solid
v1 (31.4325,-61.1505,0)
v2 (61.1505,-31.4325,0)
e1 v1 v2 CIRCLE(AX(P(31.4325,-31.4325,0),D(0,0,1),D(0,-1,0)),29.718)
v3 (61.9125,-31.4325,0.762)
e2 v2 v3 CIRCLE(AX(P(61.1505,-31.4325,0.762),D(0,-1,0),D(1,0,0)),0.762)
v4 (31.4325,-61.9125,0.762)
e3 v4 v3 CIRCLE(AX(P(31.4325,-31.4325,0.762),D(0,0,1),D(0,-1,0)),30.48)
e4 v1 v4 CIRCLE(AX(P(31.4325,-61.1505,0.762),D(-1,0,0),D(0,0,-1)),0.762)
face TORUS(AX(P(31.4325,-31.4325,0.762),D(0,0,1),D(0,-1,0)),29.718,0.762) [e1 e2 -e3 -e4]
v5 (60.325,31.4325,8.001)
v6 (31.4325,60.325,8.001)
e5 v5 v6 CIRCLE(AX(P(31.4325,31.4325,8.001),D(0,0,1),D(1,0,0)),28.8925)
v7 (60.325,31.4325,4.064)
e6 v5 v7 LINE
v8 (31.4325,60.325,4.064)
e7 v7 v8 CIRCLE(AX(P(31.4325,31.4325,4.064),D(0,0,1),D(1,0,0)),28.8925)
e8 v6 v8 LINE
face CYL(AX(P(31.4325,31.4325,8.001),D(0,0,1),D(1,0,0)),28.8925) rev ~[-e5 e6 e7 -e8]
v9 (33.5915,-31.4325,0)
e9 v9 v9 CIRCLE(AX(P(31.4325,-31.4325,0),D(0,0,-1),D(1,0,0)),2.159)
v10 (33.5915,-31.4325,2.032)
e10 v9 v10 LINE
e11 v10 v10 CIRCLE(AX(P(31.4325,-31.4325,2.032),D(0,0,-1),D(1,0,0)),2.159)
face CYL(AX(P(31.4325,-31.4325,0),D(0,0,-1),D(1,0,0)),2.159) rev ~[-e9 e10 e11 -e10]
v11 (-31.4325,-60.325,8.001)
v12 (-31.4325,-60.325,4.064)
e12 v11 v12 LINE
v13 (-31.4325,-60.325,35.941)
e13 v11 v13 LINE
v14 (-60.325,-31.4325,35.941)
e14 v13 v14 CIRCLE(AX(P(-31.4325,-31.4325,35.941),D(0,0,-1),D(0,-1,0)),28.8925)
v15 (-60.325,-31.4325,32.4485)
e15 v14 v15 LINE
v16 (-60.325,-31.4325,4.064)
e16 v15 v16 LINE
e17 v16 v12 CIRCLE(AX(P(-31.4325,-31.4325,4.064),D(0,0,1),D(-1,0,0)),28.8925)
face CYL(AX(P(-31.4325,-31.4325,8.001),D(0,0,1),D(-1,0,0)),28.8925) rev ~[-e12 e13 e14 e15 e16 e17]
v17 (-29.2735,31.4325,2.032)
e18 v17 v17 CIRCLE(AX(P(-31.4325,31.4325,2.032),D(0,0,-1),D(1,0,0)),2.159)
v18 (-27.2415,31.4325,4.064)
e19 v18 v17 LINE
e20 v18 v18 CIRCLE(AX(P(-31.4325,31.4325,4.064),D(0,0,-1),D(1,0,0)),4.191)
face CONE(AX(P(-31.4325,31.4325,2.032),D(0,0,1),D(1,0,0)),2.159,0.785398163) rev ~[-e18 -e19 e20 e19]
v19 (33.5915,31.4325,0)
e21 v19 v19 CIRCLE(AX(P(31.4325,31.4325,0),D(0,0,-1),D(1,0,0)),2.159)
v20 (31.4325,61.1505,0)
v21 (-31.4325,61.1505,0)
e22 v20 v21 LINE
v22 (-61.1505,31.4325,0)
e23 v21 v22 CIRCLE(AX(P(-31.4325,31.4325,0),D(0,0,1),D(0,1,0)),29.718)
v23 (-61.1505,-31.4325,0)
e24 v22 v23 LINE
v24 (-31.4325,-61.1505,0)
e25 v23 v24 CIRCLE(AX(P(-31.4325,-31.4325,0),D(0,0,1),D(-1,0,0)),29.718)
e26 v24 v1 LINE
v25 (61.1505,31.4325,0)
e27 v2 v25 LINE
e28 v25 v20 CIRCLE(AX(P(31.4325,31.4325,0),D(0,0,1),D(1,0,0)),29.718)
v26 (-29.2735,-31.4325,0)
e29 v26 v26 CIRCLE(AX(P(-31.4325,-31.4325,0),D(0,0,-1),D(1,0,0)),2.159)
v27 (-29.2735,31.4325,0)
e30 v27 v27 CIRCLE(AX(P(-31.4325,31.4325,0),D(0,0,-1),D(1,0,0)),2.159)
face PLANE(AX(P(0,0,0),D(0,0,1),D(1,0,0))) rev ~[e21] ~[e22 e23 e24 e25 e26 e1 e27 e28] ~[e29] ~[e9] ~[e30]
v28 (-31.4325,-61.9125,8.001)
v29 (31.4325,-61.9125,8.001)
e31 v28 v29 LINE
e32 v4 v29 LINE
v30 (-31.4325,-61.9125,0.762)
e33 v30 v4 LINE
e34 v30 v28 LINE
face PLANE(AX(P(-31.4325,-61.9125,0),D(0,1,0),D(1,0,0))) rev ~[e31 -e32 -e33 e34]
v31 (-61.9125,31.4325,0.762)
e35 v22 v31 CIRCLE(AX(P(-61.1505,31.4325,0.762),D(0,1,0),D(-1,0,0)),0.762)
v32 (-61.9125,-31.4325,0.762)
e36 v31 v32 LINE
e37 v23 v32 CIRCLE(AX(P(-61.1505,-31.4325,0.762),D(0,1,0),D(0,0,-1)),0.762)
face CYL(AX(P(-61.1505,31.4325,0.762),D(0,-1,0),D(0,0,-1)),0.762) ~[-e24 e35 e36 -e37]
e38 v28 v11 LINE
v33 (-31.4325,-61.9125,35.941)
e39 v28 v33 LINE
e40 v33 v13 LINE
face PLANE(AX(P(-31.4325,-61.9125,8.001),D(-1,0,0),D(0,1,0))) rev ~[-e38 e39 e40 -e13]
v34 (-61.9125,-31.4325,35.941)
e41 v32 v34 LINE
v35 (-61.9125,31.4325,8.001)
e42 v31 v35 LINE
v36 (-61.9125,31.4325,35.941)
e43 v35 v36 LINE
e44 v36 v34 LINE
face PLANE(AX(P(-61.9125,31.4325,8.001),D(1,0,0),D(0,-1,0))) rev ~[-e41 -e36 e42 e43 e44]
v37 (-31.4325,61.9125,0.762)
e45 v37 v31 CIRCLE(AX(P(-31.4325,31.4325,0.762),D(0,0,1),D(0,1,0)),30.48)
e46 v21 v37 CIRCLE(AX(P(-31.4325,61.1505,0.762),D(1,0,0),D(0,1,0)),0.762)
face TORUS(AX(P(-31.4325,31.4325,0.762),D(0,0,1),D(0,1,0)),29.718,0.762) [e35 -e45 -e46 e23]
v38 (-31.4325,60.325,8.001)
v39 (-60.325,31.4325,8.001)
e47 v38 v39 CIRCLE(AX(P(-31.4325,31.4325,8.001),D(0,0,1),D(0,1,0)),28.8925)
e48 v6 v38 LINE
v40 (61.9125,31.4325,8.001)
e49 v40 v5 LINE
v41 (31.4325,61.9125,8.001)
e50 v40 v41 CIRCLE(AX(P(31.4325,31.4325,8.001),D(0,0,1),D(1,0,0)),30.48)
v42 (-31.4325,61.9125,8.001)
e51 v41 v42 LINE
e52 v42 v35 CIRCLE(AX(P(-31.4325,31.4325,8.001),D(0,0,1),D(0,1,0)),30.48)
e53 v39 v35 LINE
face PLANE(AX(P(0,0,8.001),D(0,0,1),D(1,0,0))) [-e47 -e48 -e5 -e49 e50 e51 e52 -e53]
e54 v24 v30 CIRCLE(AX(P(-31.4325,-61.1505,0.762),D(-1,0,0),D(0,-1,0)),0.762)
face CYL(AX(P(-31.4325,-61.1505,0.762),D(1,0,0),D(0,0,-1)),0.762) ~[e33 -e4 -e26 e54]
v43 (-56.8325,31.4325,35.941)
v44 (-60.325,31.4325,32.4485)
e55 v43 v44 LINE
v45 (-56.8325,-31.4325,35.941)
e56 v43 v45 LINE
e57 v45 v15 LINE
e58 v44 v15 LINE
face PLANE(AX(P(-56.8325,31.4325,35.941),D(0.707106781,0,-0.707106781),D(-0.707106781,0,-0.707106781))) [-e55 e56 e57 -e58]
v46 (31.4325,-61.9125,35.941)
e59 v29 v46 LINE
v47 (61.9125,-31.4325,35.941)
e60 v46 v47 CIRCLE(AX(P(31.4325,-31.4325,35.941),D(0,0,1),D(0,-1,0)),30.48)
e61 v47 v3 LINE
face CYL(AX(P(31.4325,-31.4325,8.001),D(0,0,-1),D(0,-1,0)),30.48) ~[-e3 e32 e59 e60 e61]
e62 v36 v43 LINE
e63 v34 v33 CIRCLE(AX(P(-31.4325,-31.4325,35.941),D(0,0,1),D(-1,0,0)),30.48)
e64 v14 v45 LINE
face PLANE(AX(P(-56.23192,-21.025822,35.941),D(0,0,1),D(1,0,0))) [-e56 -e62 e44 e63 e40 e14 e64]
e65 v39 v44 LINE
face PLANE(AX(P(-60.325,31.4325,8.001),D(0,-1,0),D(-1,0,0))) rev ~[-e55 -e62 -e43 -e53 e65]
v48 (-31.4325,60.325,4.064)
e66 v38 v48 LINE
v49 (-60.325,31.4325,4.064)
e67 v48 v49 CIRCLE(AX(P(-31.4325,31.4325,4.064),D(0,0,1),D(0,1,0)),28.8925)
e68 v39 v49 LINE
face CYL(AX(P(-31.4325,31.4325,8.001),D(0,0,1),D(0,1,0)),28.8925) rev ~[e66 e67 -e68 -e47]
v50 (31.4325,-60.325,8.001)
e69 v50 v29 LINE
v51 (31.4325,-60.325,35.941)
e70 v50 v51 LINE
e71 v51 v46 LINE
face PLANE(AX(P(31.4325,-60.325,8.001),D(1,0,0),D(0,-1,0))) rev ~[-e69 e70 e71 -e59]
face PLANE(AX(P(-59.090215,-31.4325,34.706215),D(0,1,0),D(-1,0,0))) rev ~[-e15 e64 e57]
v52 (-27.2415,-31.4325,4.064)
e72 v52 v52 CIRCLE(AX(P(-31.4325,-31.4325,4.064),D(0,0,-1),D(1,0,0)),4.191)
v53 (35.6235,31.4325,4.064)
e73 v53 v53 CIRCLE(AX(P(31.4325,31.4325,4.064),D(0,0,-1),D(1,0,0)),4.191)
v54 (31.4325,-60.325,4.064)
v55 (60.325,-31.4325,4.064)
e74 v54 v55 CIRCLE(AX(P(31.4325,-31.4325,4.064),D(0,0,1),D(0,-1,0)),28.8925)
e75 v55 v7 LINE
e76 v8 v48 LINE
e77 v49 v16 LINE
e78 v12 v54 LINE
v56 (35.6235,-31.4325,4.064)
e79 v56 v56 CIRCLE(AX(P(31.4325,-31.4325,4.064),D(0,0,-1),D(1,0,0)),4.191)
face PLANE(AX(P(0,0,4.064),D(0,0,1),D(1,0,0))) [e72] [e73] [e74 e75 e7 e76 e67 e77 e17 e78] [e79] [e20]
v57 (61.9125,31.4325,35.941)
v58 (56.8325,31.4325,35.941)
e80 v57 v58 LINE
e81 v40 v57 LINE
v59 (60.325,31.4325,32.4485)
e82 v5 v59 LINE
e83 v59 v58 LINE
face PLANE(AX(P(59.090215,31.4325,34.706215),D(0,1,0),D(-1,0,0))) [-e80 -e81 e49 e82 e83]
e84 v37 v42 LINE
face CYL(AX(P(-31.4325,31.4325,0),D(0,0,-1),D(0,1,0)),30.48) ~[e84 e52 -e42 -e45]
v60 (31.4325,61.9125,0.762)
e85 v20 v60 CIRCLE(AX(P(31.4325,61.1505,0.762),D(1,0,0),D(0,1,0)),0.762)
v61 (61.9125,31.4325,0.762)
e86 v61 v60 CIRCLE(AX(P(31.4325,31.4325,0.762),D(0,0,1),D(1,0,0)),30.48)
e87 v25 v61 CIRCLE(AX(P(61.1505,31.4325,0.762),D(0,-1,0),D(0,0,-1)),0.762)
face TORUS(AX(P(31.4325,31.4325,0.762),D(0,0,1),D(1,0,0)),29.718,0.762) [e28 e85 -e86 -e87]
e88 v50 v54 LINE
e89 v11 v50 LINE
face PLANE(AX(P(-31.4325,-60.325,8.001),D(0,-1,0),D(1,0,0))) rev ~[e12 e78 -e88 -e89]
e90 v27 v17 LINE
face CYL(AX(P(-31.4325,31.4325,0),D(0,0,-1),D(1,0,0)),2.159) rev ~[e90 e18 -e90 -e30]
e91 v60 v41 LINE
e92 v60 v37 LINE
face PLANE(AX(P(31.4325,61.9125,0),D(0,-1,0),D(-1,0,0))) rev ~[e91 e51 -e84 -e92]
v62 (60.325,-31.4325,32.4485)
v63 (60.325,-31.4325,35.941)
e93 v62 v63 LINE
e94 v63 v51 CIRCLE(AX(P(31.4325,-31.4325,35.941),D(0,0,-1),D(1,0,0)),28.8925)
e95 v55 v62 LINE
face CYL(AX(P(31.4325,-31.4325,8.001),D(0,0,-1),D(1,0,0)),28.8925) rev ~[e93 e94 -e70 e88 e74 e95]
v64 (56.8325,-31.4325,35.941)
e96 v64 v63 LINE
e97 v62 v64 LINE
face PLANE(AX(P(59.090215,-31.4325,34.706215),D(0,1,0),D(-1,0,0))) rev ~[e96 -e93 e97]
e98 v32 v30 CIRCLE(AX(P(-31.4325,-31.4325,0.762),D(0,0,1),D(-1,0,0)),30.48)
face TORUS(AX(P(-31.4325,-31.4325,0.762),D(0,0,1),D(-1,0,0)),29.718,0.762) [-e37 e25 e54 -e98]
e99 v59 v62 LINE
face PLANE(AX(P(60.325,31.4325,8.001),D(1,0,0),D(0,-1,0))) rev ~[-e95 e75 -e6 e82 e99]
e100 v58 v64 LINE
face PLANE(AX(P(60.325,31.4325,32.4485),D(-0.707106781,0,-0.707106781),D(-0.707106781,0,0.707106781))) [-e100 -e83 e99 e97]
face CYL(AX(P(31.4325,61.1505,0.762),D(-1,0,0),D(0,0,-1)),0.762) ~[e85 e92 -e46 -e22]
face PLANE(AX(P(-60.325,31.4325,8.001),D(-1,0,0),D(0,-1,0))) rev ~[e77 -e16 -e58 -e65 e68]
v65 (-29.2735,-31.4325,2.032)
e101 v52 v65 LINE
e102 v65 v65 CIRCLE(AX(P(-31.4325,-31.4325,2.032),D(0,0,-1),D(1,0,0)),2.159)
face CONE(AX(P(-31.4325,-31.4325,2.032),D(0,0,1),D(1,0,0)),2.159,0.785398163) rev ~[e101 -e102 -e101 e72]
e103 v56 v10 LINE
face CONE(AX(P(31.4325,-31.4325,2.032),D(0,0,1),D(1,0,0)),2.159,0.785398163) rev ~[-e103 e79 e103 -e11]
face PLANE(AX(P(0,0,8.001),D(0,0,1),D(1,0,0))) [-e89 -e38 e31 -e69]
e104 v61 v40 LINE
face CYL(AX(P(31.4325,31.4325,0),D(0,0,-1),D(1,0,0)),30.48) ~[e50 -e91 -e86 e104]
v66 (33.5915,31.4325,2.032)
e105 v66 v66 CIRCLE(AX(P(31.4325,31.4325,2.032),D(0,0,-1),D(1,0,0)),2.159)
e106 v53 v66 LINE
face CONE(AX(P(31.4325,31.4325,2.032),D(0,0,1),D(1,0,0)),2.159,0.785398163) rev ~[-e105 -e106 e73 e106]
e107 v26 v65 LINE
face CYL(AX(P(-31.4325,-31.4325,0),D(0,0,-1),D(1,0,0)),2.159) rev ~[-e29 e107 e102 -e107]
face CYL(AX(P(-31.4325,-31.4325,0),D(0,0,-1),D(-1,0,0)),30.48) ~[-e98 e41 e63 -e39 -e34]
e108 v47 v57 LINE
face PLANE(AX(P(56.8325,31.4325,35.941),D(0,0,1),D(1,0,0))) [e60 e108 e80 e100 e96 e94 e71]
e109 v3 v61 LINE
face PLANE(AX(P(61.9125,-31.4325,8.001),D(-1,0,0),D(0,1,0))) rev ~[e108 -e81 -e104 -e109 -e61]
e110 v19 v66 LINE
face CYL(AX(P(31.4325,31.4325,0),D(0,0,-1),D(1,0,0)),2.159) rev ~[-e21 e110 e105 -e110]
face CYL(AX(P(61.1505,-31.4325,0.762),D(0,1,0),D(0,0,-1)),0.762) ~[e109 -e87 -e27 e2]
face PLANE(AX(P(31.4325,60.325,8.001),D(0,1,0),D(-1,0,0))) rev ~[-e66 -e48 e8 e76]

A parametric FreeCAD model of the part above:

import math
import FreeCAD as App
import Part
import Sketcher
from FreeCAD import Vector
Q = App.Units.Quantity


def edges_at(feature, points):
    """Names of the edges that pass closest to the given points."""
    edges = feature.Shape.Edges
    near = lambda p: min(range(len(edges)), key=lambda i: edges[i].distToShape(Part.Vertex(*p))[0])
    return sorted({f"Edge{near(p) + 1}" for p in points})

doc = App.newDocument("Part")
body = doc.addObject("PartDesign::Body", "Body")

# Sketch on XY plane
sketch1 = body.newObject("Sketcher::SketchObject", "Sketch")
sketch1.AttachmentSupport = (doc.getObject("XY_Plane"), [""])
sketch1.MapMode = "FlatFace"
sketch1.addGeometry([
    Part.LineSegment(Vector(31.4325, 61.9125, 0), Vector(-31.4325, 61.9125, 0)),  # 0
    Part.ArcOfCircle(Part.Circle(Vector(-31.4325, 31.4325, 0), Vector(0, 0, 1), 30.48), math.radians(90), math.radians(180)),  # 1
    Part.LineSegment(Vector(-61.9125, 31.4325, 0), Vector(-61.9125, -31.4325, 0)),  # 2
    Part.ArcOfCircle(Part.Circle(Vector(-31.4325, -31.4325, 0), Vector(0, 0, 1), 30.48), math.radians(180), math.radians(270)),  # 3
    Part.LineSegment(Vector(-31.4325, -61.9125, 0), Vector(31.4325, -61.9125, 0)),  # 4
    Part.ArcOfCircle(Part.Circle(Vector(31.4325, -31.4325, 0), Vector(0, 0, 1), 30.48), math.radians(-90), math.radians(0)),  # 5
    Part.LineSegment(Vector(61.9125, -31.4325, 0), Vector(61.9125, 31.4325, 0)),  # 6
    Part.ArcOfCircle(Part.Circle(Vector(31.4325, 31.4325, 0), Vector(0, 0, 1), 30.48), math.radians(0), math.radians(90)),  # 7
], False)
sketch1.addConstraint([
    Sketcher.Constraint("Tangent", 0, 2, 1, 1),
    Sketcher.Constraint("Tangent", 1, 2, 2, 1),
    Sketcher.Constraint("Tangent", 2, 2, 3, 1),
    Sketcher.Constraint("Tangent", 3, 2, 4, 1),
    Sketcher.Constraint("Tangent", 4, 2, 5, 1),
    Sketcher.Constraint("Tangent", 5, 2, 6, 1),
    Sketcher.Constraint("Tangent", 6, 2, 7, 1),
    Sketcher.Constraint("Tangent", 7, 2, 0, 1),
    Sketcher.Constraint("Horizontal", 0),
    Sketcher.Constraint("Vertical", 2),
    Sketcher.Constraint("Horizontal", 4),
    Sketcher.Constraint("Vertical", 6),
    Sketcher.Constraint("Equal", 1, 3),
    Sketcher.Constraint("Equal", 3, 5),
    Sketcher.Constraint("Equal", 5, 7),
    Sketcher.Constraint("Symmetric", 1, 3, 5, 3, -1, 1),
    Sketcher.Constraint("Equal", 4, 2),
    Sketcher.Constraint("Radius", 1, Q("1.2 in")),
    Sketcher.Constraint("DistanceX", 0, 2, 0, 1, Q("2.475 in")),
])
pad1 = body.newObject("PartDesign::Pad", "Pad")
pad1.Profile = sketch1
pad1.Length = Q("0.315 in")

# Sketch on XY plane
sketch2 = body.newObject("Sketcher::SketchObject", "Sketch001")
sketch2.AttachmentSupport = (doc.getObject("XY_Plane"), [""])
sketch2.MapMode = "FlatFace"
sketch2.AttachmentOffset = App.Placement(Vector(0, 0, 0.315 * 25.4), App.Rotation())
sketch2.addGeometry([
    Part.LineSegment(Vector(31.4325, 60.325, 0), Vector(-31.4325, 60.325, 0)),  # 0
    Part.ArcOfCircle(Part.Circle(Vector(-31.4325, 31.4325, 0), Vector(0, 0, 1), 28.8925), math.radians(90), math.radians(180)),  # 1
    Part.LineSegment(Vector(-60.325, 31.4325, 0), Vector(-60.325, -31.4325, 0)),  # 2
    Part.ArcOfCircle(Part.Circle(Vector(-31.4325, -31.4325, 0), Vector(0, 0, 1), 28.8925), math.radians(180), math.radians(270)),  # 3
    Part.LineSegment(Vector(-31.4325, -60.325, 0), Vector(31.4325, -60.325, 0)),  # 4
    Part.ArcOfCircle(Part.Circle(Vector(31.4325, -31.4325, 0), Vector(0, 0, 1), 28.8925), math.radians(-90), math.radians(0)),  # 5
    Part.LineSegment(Vector(60.325, -31.4325, 0), Vector(60.325, 31.4325, 0)),  # 6
    Part.ArcOfCircle(Part.Circle(Vector(31.4325, 31.4325, 0), Vector(0, 0, 1), 28.8925), math.radians(0), math.radians(90)),  # 7
], False)
sketch2.addConstraint([
    Sketcher.Constraint("Tangent", 0, 2, 1, 1),
    Sketcher.Constraint("Tangent", 1, 2, 2, 1),
    Sketcher.Constraint("Tangent", 2, 2, 3, 1),
    Sketcher.Constraint("Tangent", 3, 2, 4, 1),
    Sketcher.Constraint("Tangent", 4, 2, 5, 1),
    Sketcher.Constraint("Tangent", 5, 2, 6, 1),
    Sketcher.Constraint("Tangent", 6, 2, 7, 1),
    Sketcher.Constraint("Tangent", 7, 2, 0, 1),
    Sketcher.Constraint("Horizontal", 0),
    Sketcher.Constraint("Vertical", 2),
    Sketcher.Constraint("Horizontal", 4),
    Sketcher.Constraint("Vertical", 6),
    Sketcher.Constraint("Equal", 1, 3),
    Sketcher.Constraint("Equal", 3, 5),
    Sketcher.Constraint("Equal", 5, 7),
    Sketcher.Constraint("Symmetric", 1, 3, 5, 3, -1, 1),
    Sketcher.Constraint("Equal", 4, 2),
    Sketcher.Constraint("Radius", 1, Q("1.1375 in")),
    Sketcher.Constraint("DistanceX", 0, 2, 0, 1, Q("2.475 in")),
])
pocket1 = body.newObject("PartDesign::Pocket", "Pocket")
pocket1.Profile = sketch2
pocket1.Length = Q("0.155 in")

# Sketch on XY plane
sketch3 = body.newObject("Sketcher::SketchObject", "Sketch002")
sketch3.AttachmentSupport = (doc.getObject("XY_Plane"), [""])
sketch3.MapMode = "FlatFace"
sketch3.AttachmentOffset = App.Placement(Vector(0, 0, 0.315 * 25.4), App.Rotation())
sketch3.addGeometry([
    Part.LineSegment(Vector(61.9125, 31.4325, 0), Vector(60.325, 31.4325, 0)),  # 0
    Part.LineSegment(Vector(60.325, 31.4325, 0), Vector(60.325, -31.4325, 0)),  # 1
    Part.ArcOfCircle(Part.Circle(Vector(31.4325, -31.4325, 0), Vector(0, 0, 1), 28.8925), math.radians(-90), math.radians(0)),  # 2
    Part.LineSegment(Vector(31.4325, -60.325, 0), Vector(31.4325, -61.9125, 0)),  # 3
    Part.ArcOfCircle(Part.Circle(Vector(31.4325, -31.4325, 0), Vector(0, 0, 1), 30.48), math.radians(-90), math.radians(0)),  # 4
    Part.LineSegment(Vector(61.9125, -31.4325, 0), Vector(61.9125, 31.4325, 0)),  # 5
    Part.LineSegment(Vector(-60.325, -31.4325, 0), Vector(-60.325, 31.4325, 0)),  # 6
    Part.LineSegment(Vector(-60.325, 31.4325, 0), Vector(-61.9125, 31.4325, 0)),  # 7
    Part.LineSegment(Vector(-61.9125, 31.4325, 0), Vector(-61.9125, -31.4325, 0)),  # 8
    Part.ArcOfCircle(Part.Circle(Vector(-31.4325, -31.4325, 0), Vector(0, 0, 1), 30.48), math.radians(180), math.radians(270)),  # 9
    Part.LineSegment(Vector(-31.4325, -61.9125, 0), Vector(-31.4325, -60.325, 0)),  # 10
    Part.ArcOfCircle(Part.Circle(Vector(-31.4325, -31.4325, 0), Vector(0, 0, 1), 28.8925), math.radians(180), math.radians(270)),  # 11
], False)
sketch3.addConstraint([
    Sketcher.Constraint("Coincident", 0, 2, 1, 1),
    Sketcher.Constraint("Tangent", 1, 2, 2, 2),
    Sketcher.Constraint("Coincident", 2, 1, 3, 1),
    Sketcher.Constraint("Coincident", 3, 2, 4, 1),
    Sketcher.Constraint("Tangent", 4, 2, 5, 1),
    Sketcher.Constraint("Coincident", 5, 2, 0, 1),
    Sketcher.Constraint("Coincident", 6, 2, 7, 1),
    Sketcher.Constraint("Coincident", 7, 2, 8, 1),
    Sketcher.Constraint("Tangent", 8, 2, 9, 1),
    Sketcher.Constraint("Coincident", 9, 2, 10, 1),
    Sketcher.Constraint("Coincident", 10, 2, 11, 2),
    Sketcher.Constraint("Tangent", 11, 1, 6, 1),
    Sketcher.Constraint("Horizontal", 0),
    Sketcher.Constraint("Vertical", 1),
    Sketcher.Constraint("Vertical", 3),
    Sketcher.Constraint("Vertical", 5),
    Sketcher.Constraint("Vertical", 6),
    Sketcher.Constraint("Horizontal", 7),
    Sketcher.Constraint("Vertical", 8),
    Sketcher.Constraint("Vertical", 10),
    Sketcher.Constraint("Coincident", 4, 3, 2, 3),
    Sketcher.Constraint("Coincident", 11, 3, 9, 3),
    Sketcher.Constraint("Equal", 4, 9),
    Sketcher.Constraint("Equal", 2, 11),
    Sketcher.Constraint("Symmetric", 1, 2, 6, 2, -1, 1),
    Sketcher.Constraint("Symmetric", 3, 2, 9, 2, -2),
    Sketcher.Constraint("Horizontal", 5, 2, 6, 2),
    Sketcher.Constraint("Vertical", 4, 3, 2, 1),
    Sketcher.Constraint("Radius", 4, Q("1.2 in")),
    Sketcher.Constraint("Radius", 2, Q("1.1375 in")),
    Sketcher.Constraint("DistanceY", 1, 2, 1, 1, Q("2.475 in")),
    Sketcher.Constraint("DistanceX", 6, 2, 0, 2, Q("4.75 in")),
])
pad2 = body.newObject("PartDesign::Pad", "Pad001")
pad2.Profile = sketch3
pad2.Length = Q("1.1 in")

# Sketch on XZ plane
sketch4 = body.newObject("Sketcher::SketchObject", "Sketch003")
sketch4.AttachmentSupport = (doc.getObject("XZ_Plane"), [""])
sketch4.MapMode = "FlatFace"
sketch4.AttachmentOffset = App.Placement(Vector(0, 0, -1.2375 * 25.4), App.Rotation())
sketch4.addGeometry([
    Part.LineSegment(Vector(56.8325, 35.941, 0), Vector(60.325, 35.941, 0)),  # 0
    Part.LineSegment(Vector(60.325, 35.941, 0), Vector(60.325, 32.4485, 0)),  # 1
    Part.LineSegment(Vector(60.325, 32.4485, 0), Vector(56.8325, 35.941, 0)),  # 2
    Part.LineSegment(Vector(-60.325, 32.4485, 0), Vector(-60.325, 35.941, 0)),  # 3
    Part.LineSegment(Vector(-60.325, 35.941, 0), Vector(-56.8325, 35.941, 0)),  # 4
    Part.LineSegment(Vector(-56.8325, 35.941, 0), Vector(-60.325, 32.4485, 0)),  # 5
], False)
sketch4.addConstraint([
    Sketcher.Constraint("Coincident", 0, 2, 1, 1),
    Sketcher.Constraint("Coincident", 1, 2, 2, 1),
    Sketcher.Constraint("Coincident", 2, 2, 0, 1),
    Sketcher.Constraint("Coincident", 3, 2, 4, 1),
    Sketcher.Constraint("Coincident", 4, 2, 5, 1),
    Sketcher.Constraint("Coincident", 5, 2, 3, 1),
    Sketcher.Constraint("Horizontal", 0),
    Sketcher.Constraint("Vertical", 1),
    Sketcher.Constraint("Vertical", 3),
    Sketcher.Constraint("Horizontal", 4),
    Sketcher.Constraint("Symmetric", 0, 2, 3, 2, -2),
    Sketcher.Constraint("Perpendicular", 2, 5),
    Sketcher.Constraint("Horizontal", 1, 2, 5, 2),
    Sketcher.Constraint("Equal", 0, 4),
    Sketcher.Constraint("DistanceX", 3, 2, 0, 2, Q("4.75 in")),
    Sketcher.Constraint("DistanceX", 0, 1, 0, 2, Q("0.1375 in")),
    Sketcher.Constraint("DistanceY", -1, 1, 0, 2, Q("1.415 in")),
])
pad3 = body.newObject("PartDesign::Pad", "Pad002")
pad3.Profile = sketch4
pad3.Length = Q("2.475 in")

# Sketch on XY plane
sketch5 = body.newObject("Sketcher::SketchObject", "Sketch004")
sketch5.AttachmentSupport = (doc.getObject("XY_Plane"), [""])
sketch5.MapMode = "FlatFace"
sketch5.addGeometry([
    Part.Circle(Vector(-31.4325, -31.4325, 0), Vector(0, 0, 1), 2.159),
    Part.Circle(Vector(31.4325, -31.4325, 0), Vector(0, 0, 1), 2.159),
    Part.Circle(Vector(31.4325, 31.4325, 0), Vector(0, 0, 1), 2.159),
    Part.Circle(Vector(-31.4325, 31.4325, 0), Vector(0, 0, 1), 2.159),
], False)
sketch5.addConstraint([
    Sketcher.Constraint("Equal", 0, 1),
    Sketcher.Constraint("Equal", 1, 2),
    Sketcher.Constraint("Equal", 2, 3),
    Sketcher.Constraint("Symmetric", 0, 3, 2, 3, -1, 1),
    Sketcher.Constraint("Symmetric", 1, 3, 3, 3, -1, 1),
    Sketcher.Constraint("Symmetric", 0, 3, 1, 3, -2),
    Sketcher.Constraint("Diameter", 0, Q("0.17 in")),
    Sketcher.Constraint("DistanceX", 0, 3, 1, 3, Q("2.475 in")),
    Sketcher.Constraint("DistanceY", 1, 3, 2, 3, Q("2.475 in")),
])
pocket2 = body.newObject("PartDesign::Pocket", "Pocket001")
pocket2.Profile = sketch5
pocket2.Length = Q("1 in")
pocket2.Reversed = True
doc.recompute()

chamfer = body.newObject("PartDesign::Chamfer", "Chamfer")
chamfer.Base = (pocket2, edges_at(pocket2, [
    (29.273, -31.433, 4.064),
    (-33.592, -31.433, 4.064),
    (-33.592, 31.433, 4.064),
    (29.273, 31.433, 4.064),
]))
chamfer.Size = Q("0.08 in")
doc.recompute()

fillet = body.newObject("PartDesign::Fillet", "Fillet")
fillet.Base = (chamfer, edges_at(chamfer, [(-52.985, 52.985, 0)]))
fillet.Radius = Q("0.03 in")

doc.recompute()
